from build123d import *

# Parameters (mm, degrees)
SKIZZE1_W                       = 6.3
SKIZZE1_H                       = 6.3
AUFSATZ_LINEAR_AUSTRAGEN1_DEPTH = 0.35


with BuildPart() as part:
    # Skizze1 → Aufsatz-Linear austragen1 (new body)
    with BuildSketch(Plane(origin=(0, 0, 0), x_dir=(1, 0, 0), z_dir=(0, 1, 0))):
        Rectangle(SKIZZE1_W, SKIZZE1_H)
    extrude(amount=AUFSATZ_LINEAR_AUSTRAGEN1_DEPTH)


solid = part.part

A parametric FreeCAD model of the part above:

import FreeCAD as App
import Part
import Sketcher

V = App.Vector
Q = App.Units.Quantity


def add_polygon(sketch, points):
    """Adds a closed chain of lines whose ends are joined by coincident constraints."""
    first, n = sketch.GeometryCount, len(points)
    for a, b in zip(points, points[1:] + points[:1]):
        sketch.addGeometry(Part.LineSegment(App.Vector(*a, 0), App.Vector(*b, 0)), False)
    for i in range(n):
        sketch.addConstraint(Sketcher.Constraint("Coincident", first + i, 2, first + (i + 1) % n, 1))

doc = App.newDocument("Part")
body = doc.addObject("PartDesign::Body", "Body")

sketch1 = doc.addObject("Sketcher::SketchObject", "Sketch")
body.addObject(sketch1)
sketch1.AttachmentSupport = (doc.XZ_Plane, [""])
sketch1.MapMode = "FlatFace"
add_polygon(sketch1, [(-3.15, -3.15), (-3.15, 3.15), (3.15, 3.15), (3.15, -3.15)])
sketch1.addConstraint(Sketcher.Constraint("Vertical", 0))
sketch1.addConstraint(Sketcher.Constraint("Horizontal", 1))
sketch1.addConstraint(Sketcher.Constraint("Vertical", 2))
sketch1.addConstraint(Sketcher.Constraint("Horizontal", 3))
sketch1.addConstraint(Sketcher.Constraint("Symmetric", 0, 2, 2, 2, -1, 1))
sketch1.addConstraint(Sketcher.Constraint("Equal", 3, 0))
sketch1.addConstraint(Sketcher.Constraint("DistanceX", 1, 1, 1, 2, Q("6.3 mm")))
pad1 = doc.addObject("PartDesign::Pad", "Pad")
body.addObject(pad1)
pad1.Profile = sketch1
pad1.Length = 0.35
pad1.Reversed = True

doc.recompute()
